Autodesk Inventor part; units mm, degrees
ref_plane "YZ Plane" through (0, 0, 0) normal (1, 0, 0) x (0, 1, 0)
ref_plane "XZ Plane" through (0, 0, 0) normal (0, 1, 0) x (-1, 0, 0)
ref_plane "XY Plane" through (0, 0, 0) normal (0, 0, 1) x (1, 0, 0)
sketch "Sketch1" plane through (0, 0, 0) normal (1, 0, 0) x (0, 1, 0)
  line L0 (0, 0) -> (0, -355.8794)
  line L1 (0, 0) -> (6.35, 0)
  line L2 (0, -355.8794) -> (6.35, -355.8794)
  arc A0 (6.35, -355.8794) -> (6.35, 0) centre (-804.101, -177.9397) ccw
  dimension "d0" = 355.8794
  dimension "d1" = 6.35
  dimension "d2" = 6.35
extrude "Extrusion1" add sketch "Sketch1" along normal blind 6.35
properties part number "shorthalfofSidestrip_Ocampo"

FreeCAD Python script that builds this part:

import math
import FreeCAD as App
import Part
import Sketcher
Q = App.Units.Quantity

doc = App.newDocument("Part")
body = doc.addObject("PartDesign::Body", "Body")

# Sketch on YZ plane
sketch1 = body.newObject("Sketcher::SketchObject", "Sketch")
sketch1.AttachmentSupport = (doc.getObject("YZ_Plane"), [""])
sketch1.MapMode = "FlatFace"
sketch1.addGeometry(Part.LineSegment(App.Vector(6.35, 0, 0), App.Vector(0, 0, 0)), False)
sketch1.addGeometry(Part.LineSegment(App.Vector(0, 0, 0), App.Vector(0, -355.8794, 0)), False)
sketch1.addGeometry(Part.LineSegment(App.Vector(0, -355.8794, 0), App.Vector(6.35, -355.8794, 0)), False)
sketch1.addGeometry(Part.ArcOfCircle(Part.Circle(App.Vector(-804.101, -177.9397, 0), App.Vector(0, 0, 1), 829.755), math.radians(-12.383173), math.radians(12.383173)), False)
sketch1.addConstraint(Sketcher.Constraint("Coincident", 0, 2, 1, 1))
sketch1.addConstraint(Sketcher.Constraint("Coincident", 1, 2, 2, 1))
sketch1.addConstraint(Sketcher.Constraint("Coincident", 2, 2, 3, 1))
sketch1.addConstraint(Sketcher.Constraint("Coincident", 3, 2, 0, 1))
sketch1.addConstraint(Sketcher.Constraint("Horizontal", 0))
sketch1.addConstraint(Sketcher.Constraint("Vertical", 1))
sketch1.addConstraint(Sketcher.Constraint("Horizontal", 2))
sketch1.addConstraint(Sketcher.Constraint("Coincident", 0, 2, -1, 1))
sketch1.addConstraint(Sketcher.Constraint("Vertical", 2, 2, 3, 2))
sketch1.addConstraint(Sketcher.Constraint("DistanceX", 0, 2, 0, 1, Q("0.25 in")))
sketch1.addConstraint(Sketcher.Constraint("DistanceY", 1, 2, 1, 1, Q("14.011 in")))
sketch1.addConstraint(Sketcher.Constraint("Radius", 3, 829.755))
pad1 = body.newObject("PartDesign::Pad", "Pad")
pad1.Profile = sketch1
pad1.Length = Q("0.25 in")

doc.recompute()
